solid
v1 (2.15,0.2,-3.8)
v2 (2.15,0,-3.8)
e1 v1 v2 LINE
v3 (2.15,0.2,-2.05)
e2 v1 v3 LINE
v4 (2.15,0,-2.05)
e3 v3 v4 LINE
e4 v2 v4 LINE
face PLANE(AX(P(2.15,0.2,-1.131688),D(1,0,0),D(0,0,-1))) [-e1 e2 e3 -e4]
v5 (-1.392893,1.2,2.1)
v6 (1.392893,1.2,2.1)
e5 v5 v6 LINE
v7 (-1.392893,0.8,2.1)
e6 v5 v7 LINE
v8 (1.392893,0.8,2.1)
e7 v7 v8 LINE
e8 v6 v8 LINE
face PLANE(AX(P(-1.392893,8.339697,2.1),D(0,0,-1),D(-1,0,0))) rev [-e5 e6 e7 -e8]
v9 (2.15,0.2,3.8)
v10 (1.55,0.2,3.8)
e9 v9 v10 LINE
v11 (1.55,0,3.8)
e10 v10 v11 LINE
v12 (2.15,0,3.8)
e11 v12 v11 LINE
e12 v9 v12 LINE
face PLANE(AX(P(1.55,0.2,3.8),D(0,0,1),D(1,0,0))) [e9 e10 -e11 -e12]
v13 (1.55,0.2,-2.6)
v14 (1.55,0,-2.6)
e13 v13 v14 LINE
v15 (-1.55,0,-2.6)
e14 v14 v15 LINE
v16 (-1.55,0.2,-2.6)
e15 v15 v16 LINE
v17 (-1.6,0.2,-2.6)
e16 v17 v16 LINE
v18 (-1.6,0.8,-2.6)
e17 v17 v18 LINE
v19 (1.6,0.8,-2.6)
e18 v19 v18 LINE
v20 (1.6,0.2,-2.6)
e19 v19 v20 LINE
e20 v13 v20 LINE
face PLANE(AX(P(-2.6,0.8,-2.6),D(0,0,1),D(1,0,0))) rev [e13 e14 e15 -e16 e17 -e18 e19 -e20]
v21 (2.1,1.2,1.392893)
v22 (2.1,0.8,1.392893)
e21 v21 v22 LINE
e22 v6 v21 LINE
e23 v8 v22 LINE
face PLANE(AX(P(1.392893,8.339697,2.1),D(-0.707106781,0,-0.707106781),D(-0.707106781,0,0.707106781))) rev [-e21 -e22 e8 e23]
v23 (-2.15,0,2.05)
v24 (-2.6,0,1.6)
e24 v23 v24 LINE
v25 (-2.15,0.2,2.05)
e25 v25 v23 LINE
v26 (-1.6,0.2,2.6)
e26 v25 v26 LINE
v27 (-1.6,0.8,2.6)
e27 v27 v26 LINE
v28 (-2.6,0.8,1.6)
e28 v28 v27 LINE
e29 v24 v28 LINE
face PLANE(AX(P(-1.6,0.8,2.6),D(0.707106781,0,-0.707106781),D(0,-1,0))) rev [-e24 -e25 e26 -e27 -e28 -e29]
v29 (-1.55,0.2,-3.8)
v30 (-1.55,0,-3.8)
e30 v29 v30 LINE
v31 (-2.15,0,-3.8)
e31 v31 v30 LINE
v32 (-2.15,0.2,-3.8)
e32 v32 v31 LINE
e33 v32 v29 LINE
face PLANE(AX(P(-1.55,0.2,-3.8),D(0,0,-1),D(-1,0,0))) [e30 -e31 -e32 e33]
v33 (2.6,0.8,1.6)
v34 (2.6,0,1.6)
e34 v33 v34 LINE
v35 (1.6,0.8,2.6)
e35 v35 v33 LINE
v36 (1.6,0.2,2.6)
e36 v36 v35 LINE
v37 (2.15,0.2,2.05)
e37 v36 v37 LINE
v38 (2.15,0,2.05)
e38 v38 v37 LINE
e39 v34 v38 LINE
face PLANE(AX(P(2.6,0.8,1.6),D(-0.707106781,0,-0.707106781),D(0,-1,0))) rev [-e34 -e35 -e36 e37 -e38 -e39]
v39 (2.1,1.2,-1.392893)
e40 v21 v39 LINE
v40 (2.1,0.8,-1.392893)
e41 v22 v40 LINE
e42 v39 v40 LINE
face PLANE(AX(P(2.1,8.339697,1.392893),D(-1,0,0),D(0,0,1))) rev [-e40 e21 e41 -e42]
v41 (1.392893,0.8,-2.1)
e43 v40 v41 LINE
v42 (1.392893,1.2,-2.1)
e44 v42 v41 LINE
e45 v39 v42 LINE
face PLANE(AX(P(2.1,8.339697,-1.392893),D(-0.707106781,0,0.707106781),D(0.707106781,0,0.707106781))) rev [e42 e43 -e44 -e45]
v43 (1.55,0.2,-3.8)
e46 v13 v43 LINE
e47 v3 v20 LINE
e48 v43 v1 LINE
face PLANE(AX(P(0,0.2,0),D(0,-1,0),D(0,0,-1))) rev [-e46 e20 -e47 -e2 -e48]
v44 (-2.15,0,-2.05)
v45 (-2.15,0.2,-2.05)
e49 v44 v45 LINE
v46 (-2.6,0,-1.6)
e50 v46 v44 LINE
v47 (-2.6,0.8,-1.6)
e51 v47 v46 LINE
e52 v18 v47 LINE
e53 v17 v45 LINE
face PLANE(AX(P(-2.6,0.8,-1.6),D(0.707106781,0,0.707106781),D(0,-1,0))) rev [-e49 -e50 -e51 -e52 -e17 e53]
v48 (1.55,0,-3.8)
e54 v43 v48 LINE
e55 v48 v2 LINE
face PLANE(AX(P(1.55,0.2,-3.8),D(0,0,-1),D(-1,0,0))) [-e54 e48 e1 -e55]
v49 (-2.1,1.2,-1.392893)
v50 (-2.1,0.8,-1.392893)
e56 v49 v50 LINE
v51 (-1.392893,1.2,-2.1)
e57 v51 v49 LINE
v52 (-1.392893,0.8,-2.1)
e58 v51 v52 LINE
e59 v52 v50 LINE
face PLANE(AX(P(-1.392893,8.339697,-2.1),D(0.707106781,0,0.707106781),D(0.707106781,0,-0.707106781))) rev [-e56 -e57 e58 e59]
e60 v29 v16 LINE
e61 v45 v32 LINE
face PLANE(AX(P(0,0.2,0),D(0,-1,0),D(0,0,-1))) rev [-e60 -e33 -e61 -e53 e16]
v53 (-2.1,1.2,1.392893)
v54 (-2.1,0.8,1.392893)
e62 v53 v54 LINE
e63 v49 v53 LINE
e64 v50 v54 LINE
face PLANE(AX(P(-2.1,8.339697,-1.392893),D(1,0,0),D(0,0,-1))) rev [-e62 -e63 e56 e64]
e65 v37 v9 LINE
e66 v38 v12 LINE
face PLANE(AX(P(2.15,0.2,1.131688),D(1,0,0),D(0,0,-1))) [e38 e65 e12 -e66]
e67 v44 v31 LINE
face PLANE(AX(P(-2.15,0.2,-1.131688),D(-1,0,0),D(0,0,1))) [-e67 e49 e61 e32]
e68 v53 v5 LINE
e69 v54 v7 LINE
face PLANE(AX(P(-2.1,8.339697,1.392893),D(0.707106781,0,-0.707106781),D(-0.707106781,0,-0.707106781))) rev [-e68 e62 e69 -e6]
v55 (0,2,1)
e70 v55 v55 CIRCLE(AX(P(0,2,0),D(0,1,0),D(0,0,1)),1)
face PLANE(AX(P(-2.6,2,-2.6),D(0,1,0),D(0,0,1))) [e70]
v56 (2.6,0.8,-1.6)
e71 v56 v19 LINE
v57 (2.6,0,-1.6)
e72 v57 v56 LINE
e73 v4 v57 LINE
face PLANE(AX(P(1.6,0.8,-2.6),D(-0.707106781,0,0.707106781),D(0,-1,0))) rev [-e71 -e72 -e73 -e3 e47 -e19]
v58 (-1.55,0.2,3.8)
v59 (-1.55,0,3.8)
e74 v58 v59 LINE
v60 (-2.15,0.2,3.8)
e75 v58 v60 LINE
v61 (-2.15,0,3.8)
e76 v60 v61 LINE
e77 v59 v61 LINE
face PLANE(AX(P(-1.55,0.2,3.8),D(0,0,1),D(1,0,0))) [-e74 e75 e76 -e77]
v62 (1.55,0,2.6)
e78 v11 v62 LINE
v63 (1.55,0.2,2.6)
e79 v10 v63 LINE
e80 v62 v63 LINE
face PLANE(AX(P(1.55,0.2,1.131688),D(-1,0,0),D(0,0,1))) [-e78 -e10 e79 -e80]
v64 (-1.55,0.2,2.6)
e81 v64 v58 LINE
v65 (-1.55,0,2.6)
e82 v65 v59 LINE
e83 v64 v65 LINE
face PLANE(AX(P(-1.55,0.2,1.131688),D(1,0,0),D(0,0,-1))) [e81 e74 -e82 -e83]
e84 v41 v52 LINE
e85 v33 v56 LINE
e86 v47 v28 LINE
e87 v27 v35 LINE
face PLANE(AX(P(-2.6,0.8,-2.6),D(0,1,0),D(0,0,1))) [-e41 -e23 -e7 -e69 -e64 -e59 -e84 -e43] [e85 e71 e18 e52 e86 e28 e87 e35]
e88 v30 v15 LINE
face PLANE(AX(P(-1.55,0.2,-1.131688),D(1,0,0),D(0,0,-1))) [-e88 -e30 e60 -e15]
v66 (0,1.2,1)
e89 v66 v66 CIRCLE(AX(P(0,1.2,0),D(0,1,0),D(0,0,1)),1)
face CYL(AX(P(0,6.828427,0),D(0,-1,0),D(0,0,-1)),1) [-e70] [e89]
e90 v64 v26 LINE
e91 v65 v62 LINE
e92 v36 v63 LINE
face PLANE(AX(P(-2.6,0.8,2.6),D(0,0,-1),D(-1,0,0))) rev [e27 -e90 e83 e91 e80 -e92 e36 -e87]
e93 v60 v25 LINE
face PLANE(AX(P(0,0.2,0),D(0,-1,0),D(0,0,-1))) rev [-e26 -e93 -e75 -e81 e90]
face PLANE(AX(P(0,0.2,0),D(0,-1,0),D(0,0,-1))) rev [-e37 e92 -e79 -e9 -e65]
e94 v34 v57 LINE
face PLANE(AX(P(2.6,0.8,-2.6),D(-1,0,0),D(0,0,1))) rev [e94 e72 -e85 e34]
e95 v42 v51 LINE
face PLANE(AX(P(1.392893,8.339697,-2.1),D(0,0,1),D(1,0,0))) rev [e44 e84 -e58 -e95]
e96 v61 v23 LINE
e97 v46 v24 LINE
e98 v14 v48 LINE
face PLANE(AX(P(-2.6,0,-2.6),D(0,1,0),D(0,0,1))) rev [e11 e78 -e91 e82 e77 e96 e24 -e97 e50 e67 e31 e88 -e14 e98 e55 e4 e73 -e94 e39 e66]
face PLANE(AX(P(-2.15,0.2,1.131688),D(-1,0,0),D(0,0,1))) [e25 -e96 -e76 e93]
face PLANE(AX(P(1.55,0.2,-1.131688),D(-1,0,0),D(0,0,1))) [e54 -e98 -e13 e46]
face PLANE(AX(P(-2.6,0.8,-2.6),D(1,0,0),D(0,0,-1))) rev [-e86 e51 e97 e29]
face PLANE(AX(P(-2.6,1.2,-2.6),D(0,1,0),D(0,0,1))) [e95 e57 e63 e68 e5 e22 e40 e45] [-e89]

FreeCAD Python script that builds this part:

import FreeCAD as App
import Part
import Sketcher


def edges_at(feature, points):
    """Names of the edges that pass closest to the given points."""
    edges = feature.Shape.Edges
    near = lambda p: min(range(len(edges)), key=lambda i: edges[i].distToShape(Part.Vertex(*p))[0])
    return sorted({f"Edge{near(p) + 1}" for p in points})

doc = App.newDocument("Part")
params = doc.addObject("Spreadsheet::Sheet", "Params")
for row, (alias, value) in enumerate([
    ("sketch1_width", "5.2 mm"),
    ("pad1_length", "0.8 mm"),
    ("chamfer_size", "1 mm"),
    ("sketch2_length", "1 mm"),
    ("pad2_length", "0.4 mm"),
    ("sketch3_diameter", "2 mm"),
    ("pad3_length", "0.8 mm"),
    ("sketch4_width", "0.6 mm"),
    ("pad4_length", "0.2 mm"),
], start=1):
    params.set(f"A{row}", alias)
    params.set(f"B{row}", "=" + value)
    params.setAlias(f"B{row}", alias)

body = doc.addObject("PartDesign::Body", "Body")

sketch1 = body.newObject("Sketcher::SketchObject", "Sketch")
sketch1.AttachmentSupport = (doc.getObject("XZ_Plane"), [""])
sketch1.MapMode = "FlatFace"
sketch1.addGeometry(Part.LineSegment(App.Vector(-3, -3, 0), App.Vector(-3, 3, 0)), False)
sketch1.addGeometry(Part.LineSegment(App.Vector(-3, 3, 0), App.Vector(3, 3, 0)), False)
sketch1.addGeometry(Part.LineSegment(App.Vector(3, 3, 0), App.Vector(3, -3, 0)), False)
sketch1.addGeometry(Part.LineSegment(App.Vector(3, -3, 0), App.Vector(-3, -3, 0)), False)
sketch1.addConstraint(Sketcher.Constraint("Coincident", 0, 2, 1, 1))
sketch1.addConstraint(Sketcher.Constraint("Coincident", 1, 2, 2, 1))
sketch1.addConstraint(Sketcher.Constraint("Coincident", 2, 2, 3, 1))
sketch1.addConstraint(Sketcher.Constraint("Coincident", 3, 2, 0, 1))
sketch1.addConstraint(Sketcher.Constraint("Vertical", 0))
sketch1.addConstraint(Sketcher.Constraint("Horizontal", 1))
sketch1.addConstraint(Sketcher.Constraint("Vertical", 2))
sketch1.addConstraint(Sketcher.Constraint("Horizontal", 3))
sketch1.addConstraint(Sketcher.Constraint("Symmetric", 0, 2, 2, 2, -1, 1))
sketch1.addConstraint(Sketcher.Constraint("Equal", 3, 0))
sketch1.addConstraint(Sketcher.Constraint("DistanceX", 1, 1, 1, 2, 5.2))
sketch1.setExpression("Constraints[10]", "Params.sketch1_width")
pad1 = body.newObject("PartDesign::Pad", "Pad")
pad1.Profile = sketch1
pad1.setExpression("Length", "Params.pad1_length")
pad1.Reversed = True
doc.recompute()

chamfer = body.newObject("PartDesign::Chamfer", "Chamfer")
chamfer.Base = (pad1, edges_at(pad1, [
    (-2.6, 0.4, -2.6),
    (2.6, 0.4, -2.6),
    (2.6, 0.4, 2.6),
    (-2.6, 0.4, 2.6),
]))
chamfer.setExpression("Size", "Params.chamfer_size")

sketch2 = body.newObject("Sketcher::SketchObject", "Sketch001")
sketch2.AttachmentSupport = (doc.getObject("XZ_Plane"), [""])
sketch2.MapMode = "FlatFace"
sketch2.AttachmentOffset = App.Placement(App.Vector(0, 0, -0.8), App.Rotation())
sketch2.addGeometry(Part.LineSegment(App.Vector(-2.1, -1.4, 0), App.Vector(-2.1, 1.4, 0)), False)
sketch2.addGeometry(Part.LineSegment(App.Vector(-2.1, 1.4, 0), App.Vector(-1.4, 2.1, 0)), False)
sketch2.addGeometry(Part.LineSegment(App.Vector(-1.4, 2.1, 0), App.Vector(1.4, 2.1, 0)), False)
sketch2.addGeometry(Part.LineSegment(App.Vector(1.4, 2.1, 0), App.Vector(2.1, 1.4, 0)), False)
sketch2.addGeometry(Part.LineSegment(App.Vector(2.1, 1.4, 0), App.Vector(2.1, -1.4, 0)), False)
sketch2.addGeometry(Part.LineSegment(App.Vector(2.1, -1.4, 0), App.Vector(1.4, -2.1, 0)), False)
sketch2.addGeometry(Part.LineSegment(App.Vector(1.4, -2.1, 0), App.Vector(-1.4, -2.1, 0)), False)
sketch2.addGeometry(Part.LineSegment(App.Vector(-1.4, -2.1, 0), App.Vector(-2.1, -1.4, 0)), False)
sketch2.addConstraint(Sketcher.Constraint("Coincident", 0, 2, 1, 1))
sketch2.addConstraint(Sketcher.Constraint("Coincident", 1, 2, 2, 1))
sketch2.addConstraint(Sketcher.Constraint("Coincident", 2, 2, 3, 1))
sketch2.addConstraint(Sketcher.Constraint("Coincident", 3, 2, 4, 1))
sketch2.addConstraint(Sketcher.Constraint("Coincident", 4, 2, 5, 1))
sketch2.addConstraint(Sketcher.Constraint("Coincident", 5, 2, 6, 1))
sketch2.addConstraint(Sketcher.Constraint("Coincident", 6, 2, 7, 1))
sketch2.addConstraint(Sketcher.Constraint("Coincident", 7, 2, 0, 1))
sketch2.addConstraint(Sketcher.Constraint("Vertical", 0))
sketch2.addConstraint(Sketcher.Constraint("Horizontal", 2))
sketch2.addConstraint(Sketcher.Constraint("Vertical", 4))
sketch2.addConstraint(Sketcher.Constraint("Horizontal", 6))
sketch2.addConstraint(Sketcher.Constraint("Symmetric", 0, 2, 4, 2, -1, 1))
sketch2.addConstraint(Sketcher.Constraint("Symmetric", 1, 2, 5, 2, -1, 1))
sketch2.addConstraint(Sketcher.Constraint("Perpendicular", 1, 3))
sketch2.addConstraint(Sketcher.Constraint("Perpendicular", 5, 7))
sketch2.addConstraint(Sketcher.Constraint("Horizontal", 0, 2, 3, 2))
sketch2.addConstraint(Sketcher.Constraint("Horizontal", 4, 2, 7, 2))
sketch2.addConstraint(Sketcher.Constraint("Vertical", 2, 2, 5, 2))
sketch2.addConstraint(Sketcher.Constraint("Equal", 6, 0))
sketch2.addConstraint(Sketcher.Constraint("Distance", 1, 1.0))
sketch2.addConstraint(Sketcher.Constraint("DistanceX", 0, 2, -1, 1, 2.1))
sketch2.setExpression("Constraints[20]", "Params.sketch2_length")
pad2 = body.newObject("PartDesign::Pad", "Pad001")
pad2.Profile = sketch2
pad2.setExpression("Length", "Params.pad2_length")
pad2.Reversed = True

sketch3 = body.newObject("Sketcher::SketchObject", "Sketch002")
sketch3.AttachmentSupport = (doc.getObject("XZ_Plane"), [""])
sketch3.MapMode = "FlatFace"
sketch3.AttachmentOffset = App.Placement(App.Vector(0, 0, -1.2), App.Rotation())
sketch3.addGeometry(Part.Circle(App.Vector(0, 0, 0), App.Vector(0, 0, 1), 1), False)
sketch3.addConstraint(Sketcher.Constraint("Coincident", 0, 3, -1, 1))
sketch3.addConstraint(Sketcher.Constraint("Diameter", 0, 2.0))
sketch3.setExpression("Constraints[1]", "Params.sketch3_diameter")
pad3 = body.newObject("PartDesign::Pad", "Pad002")
pad3.Profile = sketch3
pad3.setExpression("Length", "Params.pad3_length")
pad3.Reversed = True

sketch4 = body.newObject("Sketcher::SketchObject", "Sketch003")
sketch4.AttachmentSupport = (doc.getObject("XZ_Plane"), [""])
sketch4.MapMode = "FlatFace"
sketch4.addGeometry(Part.LineSegment(App.Vector(-2.1, 3.8, 0), App.Vector(-2.1, 1.1, 0)), False)
sketch4.addGeometry(Part.LineSegment(App.Vector(-2.1, 1.1, 0), App.Vector(-1.6, 1.1, 0)), False)
sketch4.addGeometry(Part.LineSegment(App.Vector(-1.6, 1.1, 0), App.Vector(-1.6, 3.8, 0)), False)
sketch4.addGeometry(Part.LineSegment(App.Vector(-1.6, 3.8, 0), App.Vector(-2.1, 3.8, 0)), False)
sketch4.addGeometry(Part.LineSegment(App.Vector(1.6, 3.8, 0), App.Vector(1.6, 1.1, 0)), False)
sketch4.addGeometry(Part.LineSegment(App.Vector(1.6, 1.1, 0), App.Vector(2.1, 1.1, 0)), False)
sketch4.addGeometry(Part.LineSegment(App.Vector(2.1, 1.1, 0), App.Vector(2.1, 3.8, 0)), False)
sketch4.addGeometry(Part.LineSegment(App.Vector(2.1, 3.8, 0), App.Vector(1.6, 3.8, 0)), False)
sketch4.addGeometry(Part.LineSegment(App.Vector(1.6, -1.1, 0), App.Vector(1.6, -3.8, 0)), False)
sketch4.addGeometry(Part.LineSegment(App.Vector(1.6, -3.8, 0), App.Vector(2.1, -3.8, 0)), False)
sketch4.addGeometry(Part.LineSegment(App.Vector(2.1, -3.8, 0), App.Vector(2.1, -1.1, 0)), False)
sketch4.addGeometry(Part.LineSegment(App.Vector(2.1, -1.1, 0), App.Vector(1.6, -1.1, 0)), False)
sketch4.addGeometry(Part.LineSegment(App.Vector(-2.1, -1.1, 0), App.Vector(-2.1, -3.8, 0)), False)
sketch4.addGeometry(Part.LineSegment(App.Vector(-2.1, -3.8, 0), App.Vector(-1.6, -3.8, 0)), False)
sketch4.addGeometry(Part.LineSegment(App.Vector(-1.6, -3.8, 0), App.Vector(-1.6, -1.1, 0)), False)
sketch4.addGeometry(Part.LineSegment(App.Vector(-1.6, -1.1, 0), App.Vector(-2.1, -1.1, 0)), False)
sketch4.addConstraint(Sketcher.Constraint("Coincident", 0, 2, 1, 1))
sketch4.addConstraint(Sketcher.Constraint("Coincident", 1, 2, 2, 1))
sketch4.addConstraint(Sketcher.Constraint("Coincident", 2, 2, 3, 1))
sketch4.addConstraint(Sketcher.Constraint("Coincident", 3, 2, 0, 1))
sketch4.addConstraint(Sketcher.Constraint("Coincident", 4, 2, 5, 1))
sketch4.addConstraint(Sketcher.Constraint("Coincident", 5, 2, 6, 1))
sketch4.addConstraint(Sketcher.Constraint("Coincident", 6, 2, 7, 1))
sketch4.addConstraint(Sketcher.Constraint("Coincident", 7, 2, 4, 1))
sketch4.addConstraint(Sketcher.Constraint("Coincident", 8, 2, 9, 1))
sketch4.addConstraint(Sketcher.Constraint("Coincident", 9, 2, 10, 1))
sketch4.addConstraint(Sketcher.Constraint("Coincident", 10, 2, 11, 1))
sketch4.addConstraint(Sketcher.Constraint("Coincident", 11, 2, 8, 1))
sketch4.addConstraint(Sketcher.Constraint("Coincident", 12, 2, 13, 1))
sketch4.addConstraint(Sketcher.Constraint("Coincident", 13, 2, 14, 1))
sketch4.addConstraint(Sketcher.Constraint("Coincident", 14, 2, 15, 1))
sketch4.addConstraint(Sketcher.Constraint("Coincident", 15, 2, 12, 1))
sketch4.addConstraint(Sketcher.Constraint("Vertical", 0))
sketch4.addConstraint(Sketcher.Constraint("Horizontal", 1))
sketch4.addConstraint(Sketcher.Constraint("Vertical", 2))
sketch4.addConstraint(Sketcher.Constraint("Horizontal", 3))
sketch4.addConstraint(Sketcher.Constraint("Vertical", 4))
sketch4.addConstraint(Sketcher.Constraint("Horizontal", 5))
sketch4.addConstraint(Sketcher.Constraint("Vertical", 6))
sketch4.addConstraint(Sketcher.Constraint("Horizontal", 7))
sketch4.addConstraint(Sketcher.Constraint("Vertical", 8))
sketch4.addConstraint(Sketcher.Constraint("Horizontal", 9))
sketch4.addConstraint(Sketcher.Constraint("Vertical", 10))
sketch4.addConstraint(Sketcher.Constraint("Horizontal", 11))
sketch4.addConstraint(Sketcher.Constraint("Vertical", 12))
sketch4.addConstraint(Sketcher.Constraint("Horizontal", 13))
sketch4.addConstraint(Sketcher.Constraint("Vertical", 14))
sketch4.addConstraint(Sketcher.Constraint("Horizontal", 15))
sketch4.addConstraint(Sketcher.Constraint("Symmetric", 2, 2, 8, 2, -1, 1))
sketch4.addConstraint(Sketcher.Constraint("Symmetric", 0, 2, 10, 2, -1, 1))
sketch4.addConstraint(Sketcher.Constraint("Symmetric", 6, 2, 12, 2, -1, 1))
sketch4.addConstraint(Sketcher.Constraint("Symmetric", 4, 2, 14, 2, -1, 1))
sketch4.addConstraint(Sketcher.Constraint("Symmetric", 1, 2, 4, 2, -2))
sketch4.addConstraint(Sketcher.Constraint("Symmetric", 3, 2, 6, 2, -2))
sketch4.addConstraint(Sketcher.Constraint("DistanceX", 1, 1, 1, 2, 0.6))
sketch4.addConstraint(Sketcher.Constraint("DistanceY", -1, 1, 2, 2, 3.8))
sketch4.addConstraint(Sketcher.Constraint("DistanceX", 1, 2, 4, 2, 3.1))
sketch4.addConstraint(Sketcher.Constraint("DistanceY", 0, 2, 0, 1, 2.668312))
sketch4.setExpression("Constraints[38]", "Params.sketch4_width")
pad4 = body.newObject("PartDesign::Pad", "Pad003")
pad4.Profile = sketch4
pad4.setExpression("Length", "Params.pad4_length")
pad4.Reversed = True

doc.recompute()
